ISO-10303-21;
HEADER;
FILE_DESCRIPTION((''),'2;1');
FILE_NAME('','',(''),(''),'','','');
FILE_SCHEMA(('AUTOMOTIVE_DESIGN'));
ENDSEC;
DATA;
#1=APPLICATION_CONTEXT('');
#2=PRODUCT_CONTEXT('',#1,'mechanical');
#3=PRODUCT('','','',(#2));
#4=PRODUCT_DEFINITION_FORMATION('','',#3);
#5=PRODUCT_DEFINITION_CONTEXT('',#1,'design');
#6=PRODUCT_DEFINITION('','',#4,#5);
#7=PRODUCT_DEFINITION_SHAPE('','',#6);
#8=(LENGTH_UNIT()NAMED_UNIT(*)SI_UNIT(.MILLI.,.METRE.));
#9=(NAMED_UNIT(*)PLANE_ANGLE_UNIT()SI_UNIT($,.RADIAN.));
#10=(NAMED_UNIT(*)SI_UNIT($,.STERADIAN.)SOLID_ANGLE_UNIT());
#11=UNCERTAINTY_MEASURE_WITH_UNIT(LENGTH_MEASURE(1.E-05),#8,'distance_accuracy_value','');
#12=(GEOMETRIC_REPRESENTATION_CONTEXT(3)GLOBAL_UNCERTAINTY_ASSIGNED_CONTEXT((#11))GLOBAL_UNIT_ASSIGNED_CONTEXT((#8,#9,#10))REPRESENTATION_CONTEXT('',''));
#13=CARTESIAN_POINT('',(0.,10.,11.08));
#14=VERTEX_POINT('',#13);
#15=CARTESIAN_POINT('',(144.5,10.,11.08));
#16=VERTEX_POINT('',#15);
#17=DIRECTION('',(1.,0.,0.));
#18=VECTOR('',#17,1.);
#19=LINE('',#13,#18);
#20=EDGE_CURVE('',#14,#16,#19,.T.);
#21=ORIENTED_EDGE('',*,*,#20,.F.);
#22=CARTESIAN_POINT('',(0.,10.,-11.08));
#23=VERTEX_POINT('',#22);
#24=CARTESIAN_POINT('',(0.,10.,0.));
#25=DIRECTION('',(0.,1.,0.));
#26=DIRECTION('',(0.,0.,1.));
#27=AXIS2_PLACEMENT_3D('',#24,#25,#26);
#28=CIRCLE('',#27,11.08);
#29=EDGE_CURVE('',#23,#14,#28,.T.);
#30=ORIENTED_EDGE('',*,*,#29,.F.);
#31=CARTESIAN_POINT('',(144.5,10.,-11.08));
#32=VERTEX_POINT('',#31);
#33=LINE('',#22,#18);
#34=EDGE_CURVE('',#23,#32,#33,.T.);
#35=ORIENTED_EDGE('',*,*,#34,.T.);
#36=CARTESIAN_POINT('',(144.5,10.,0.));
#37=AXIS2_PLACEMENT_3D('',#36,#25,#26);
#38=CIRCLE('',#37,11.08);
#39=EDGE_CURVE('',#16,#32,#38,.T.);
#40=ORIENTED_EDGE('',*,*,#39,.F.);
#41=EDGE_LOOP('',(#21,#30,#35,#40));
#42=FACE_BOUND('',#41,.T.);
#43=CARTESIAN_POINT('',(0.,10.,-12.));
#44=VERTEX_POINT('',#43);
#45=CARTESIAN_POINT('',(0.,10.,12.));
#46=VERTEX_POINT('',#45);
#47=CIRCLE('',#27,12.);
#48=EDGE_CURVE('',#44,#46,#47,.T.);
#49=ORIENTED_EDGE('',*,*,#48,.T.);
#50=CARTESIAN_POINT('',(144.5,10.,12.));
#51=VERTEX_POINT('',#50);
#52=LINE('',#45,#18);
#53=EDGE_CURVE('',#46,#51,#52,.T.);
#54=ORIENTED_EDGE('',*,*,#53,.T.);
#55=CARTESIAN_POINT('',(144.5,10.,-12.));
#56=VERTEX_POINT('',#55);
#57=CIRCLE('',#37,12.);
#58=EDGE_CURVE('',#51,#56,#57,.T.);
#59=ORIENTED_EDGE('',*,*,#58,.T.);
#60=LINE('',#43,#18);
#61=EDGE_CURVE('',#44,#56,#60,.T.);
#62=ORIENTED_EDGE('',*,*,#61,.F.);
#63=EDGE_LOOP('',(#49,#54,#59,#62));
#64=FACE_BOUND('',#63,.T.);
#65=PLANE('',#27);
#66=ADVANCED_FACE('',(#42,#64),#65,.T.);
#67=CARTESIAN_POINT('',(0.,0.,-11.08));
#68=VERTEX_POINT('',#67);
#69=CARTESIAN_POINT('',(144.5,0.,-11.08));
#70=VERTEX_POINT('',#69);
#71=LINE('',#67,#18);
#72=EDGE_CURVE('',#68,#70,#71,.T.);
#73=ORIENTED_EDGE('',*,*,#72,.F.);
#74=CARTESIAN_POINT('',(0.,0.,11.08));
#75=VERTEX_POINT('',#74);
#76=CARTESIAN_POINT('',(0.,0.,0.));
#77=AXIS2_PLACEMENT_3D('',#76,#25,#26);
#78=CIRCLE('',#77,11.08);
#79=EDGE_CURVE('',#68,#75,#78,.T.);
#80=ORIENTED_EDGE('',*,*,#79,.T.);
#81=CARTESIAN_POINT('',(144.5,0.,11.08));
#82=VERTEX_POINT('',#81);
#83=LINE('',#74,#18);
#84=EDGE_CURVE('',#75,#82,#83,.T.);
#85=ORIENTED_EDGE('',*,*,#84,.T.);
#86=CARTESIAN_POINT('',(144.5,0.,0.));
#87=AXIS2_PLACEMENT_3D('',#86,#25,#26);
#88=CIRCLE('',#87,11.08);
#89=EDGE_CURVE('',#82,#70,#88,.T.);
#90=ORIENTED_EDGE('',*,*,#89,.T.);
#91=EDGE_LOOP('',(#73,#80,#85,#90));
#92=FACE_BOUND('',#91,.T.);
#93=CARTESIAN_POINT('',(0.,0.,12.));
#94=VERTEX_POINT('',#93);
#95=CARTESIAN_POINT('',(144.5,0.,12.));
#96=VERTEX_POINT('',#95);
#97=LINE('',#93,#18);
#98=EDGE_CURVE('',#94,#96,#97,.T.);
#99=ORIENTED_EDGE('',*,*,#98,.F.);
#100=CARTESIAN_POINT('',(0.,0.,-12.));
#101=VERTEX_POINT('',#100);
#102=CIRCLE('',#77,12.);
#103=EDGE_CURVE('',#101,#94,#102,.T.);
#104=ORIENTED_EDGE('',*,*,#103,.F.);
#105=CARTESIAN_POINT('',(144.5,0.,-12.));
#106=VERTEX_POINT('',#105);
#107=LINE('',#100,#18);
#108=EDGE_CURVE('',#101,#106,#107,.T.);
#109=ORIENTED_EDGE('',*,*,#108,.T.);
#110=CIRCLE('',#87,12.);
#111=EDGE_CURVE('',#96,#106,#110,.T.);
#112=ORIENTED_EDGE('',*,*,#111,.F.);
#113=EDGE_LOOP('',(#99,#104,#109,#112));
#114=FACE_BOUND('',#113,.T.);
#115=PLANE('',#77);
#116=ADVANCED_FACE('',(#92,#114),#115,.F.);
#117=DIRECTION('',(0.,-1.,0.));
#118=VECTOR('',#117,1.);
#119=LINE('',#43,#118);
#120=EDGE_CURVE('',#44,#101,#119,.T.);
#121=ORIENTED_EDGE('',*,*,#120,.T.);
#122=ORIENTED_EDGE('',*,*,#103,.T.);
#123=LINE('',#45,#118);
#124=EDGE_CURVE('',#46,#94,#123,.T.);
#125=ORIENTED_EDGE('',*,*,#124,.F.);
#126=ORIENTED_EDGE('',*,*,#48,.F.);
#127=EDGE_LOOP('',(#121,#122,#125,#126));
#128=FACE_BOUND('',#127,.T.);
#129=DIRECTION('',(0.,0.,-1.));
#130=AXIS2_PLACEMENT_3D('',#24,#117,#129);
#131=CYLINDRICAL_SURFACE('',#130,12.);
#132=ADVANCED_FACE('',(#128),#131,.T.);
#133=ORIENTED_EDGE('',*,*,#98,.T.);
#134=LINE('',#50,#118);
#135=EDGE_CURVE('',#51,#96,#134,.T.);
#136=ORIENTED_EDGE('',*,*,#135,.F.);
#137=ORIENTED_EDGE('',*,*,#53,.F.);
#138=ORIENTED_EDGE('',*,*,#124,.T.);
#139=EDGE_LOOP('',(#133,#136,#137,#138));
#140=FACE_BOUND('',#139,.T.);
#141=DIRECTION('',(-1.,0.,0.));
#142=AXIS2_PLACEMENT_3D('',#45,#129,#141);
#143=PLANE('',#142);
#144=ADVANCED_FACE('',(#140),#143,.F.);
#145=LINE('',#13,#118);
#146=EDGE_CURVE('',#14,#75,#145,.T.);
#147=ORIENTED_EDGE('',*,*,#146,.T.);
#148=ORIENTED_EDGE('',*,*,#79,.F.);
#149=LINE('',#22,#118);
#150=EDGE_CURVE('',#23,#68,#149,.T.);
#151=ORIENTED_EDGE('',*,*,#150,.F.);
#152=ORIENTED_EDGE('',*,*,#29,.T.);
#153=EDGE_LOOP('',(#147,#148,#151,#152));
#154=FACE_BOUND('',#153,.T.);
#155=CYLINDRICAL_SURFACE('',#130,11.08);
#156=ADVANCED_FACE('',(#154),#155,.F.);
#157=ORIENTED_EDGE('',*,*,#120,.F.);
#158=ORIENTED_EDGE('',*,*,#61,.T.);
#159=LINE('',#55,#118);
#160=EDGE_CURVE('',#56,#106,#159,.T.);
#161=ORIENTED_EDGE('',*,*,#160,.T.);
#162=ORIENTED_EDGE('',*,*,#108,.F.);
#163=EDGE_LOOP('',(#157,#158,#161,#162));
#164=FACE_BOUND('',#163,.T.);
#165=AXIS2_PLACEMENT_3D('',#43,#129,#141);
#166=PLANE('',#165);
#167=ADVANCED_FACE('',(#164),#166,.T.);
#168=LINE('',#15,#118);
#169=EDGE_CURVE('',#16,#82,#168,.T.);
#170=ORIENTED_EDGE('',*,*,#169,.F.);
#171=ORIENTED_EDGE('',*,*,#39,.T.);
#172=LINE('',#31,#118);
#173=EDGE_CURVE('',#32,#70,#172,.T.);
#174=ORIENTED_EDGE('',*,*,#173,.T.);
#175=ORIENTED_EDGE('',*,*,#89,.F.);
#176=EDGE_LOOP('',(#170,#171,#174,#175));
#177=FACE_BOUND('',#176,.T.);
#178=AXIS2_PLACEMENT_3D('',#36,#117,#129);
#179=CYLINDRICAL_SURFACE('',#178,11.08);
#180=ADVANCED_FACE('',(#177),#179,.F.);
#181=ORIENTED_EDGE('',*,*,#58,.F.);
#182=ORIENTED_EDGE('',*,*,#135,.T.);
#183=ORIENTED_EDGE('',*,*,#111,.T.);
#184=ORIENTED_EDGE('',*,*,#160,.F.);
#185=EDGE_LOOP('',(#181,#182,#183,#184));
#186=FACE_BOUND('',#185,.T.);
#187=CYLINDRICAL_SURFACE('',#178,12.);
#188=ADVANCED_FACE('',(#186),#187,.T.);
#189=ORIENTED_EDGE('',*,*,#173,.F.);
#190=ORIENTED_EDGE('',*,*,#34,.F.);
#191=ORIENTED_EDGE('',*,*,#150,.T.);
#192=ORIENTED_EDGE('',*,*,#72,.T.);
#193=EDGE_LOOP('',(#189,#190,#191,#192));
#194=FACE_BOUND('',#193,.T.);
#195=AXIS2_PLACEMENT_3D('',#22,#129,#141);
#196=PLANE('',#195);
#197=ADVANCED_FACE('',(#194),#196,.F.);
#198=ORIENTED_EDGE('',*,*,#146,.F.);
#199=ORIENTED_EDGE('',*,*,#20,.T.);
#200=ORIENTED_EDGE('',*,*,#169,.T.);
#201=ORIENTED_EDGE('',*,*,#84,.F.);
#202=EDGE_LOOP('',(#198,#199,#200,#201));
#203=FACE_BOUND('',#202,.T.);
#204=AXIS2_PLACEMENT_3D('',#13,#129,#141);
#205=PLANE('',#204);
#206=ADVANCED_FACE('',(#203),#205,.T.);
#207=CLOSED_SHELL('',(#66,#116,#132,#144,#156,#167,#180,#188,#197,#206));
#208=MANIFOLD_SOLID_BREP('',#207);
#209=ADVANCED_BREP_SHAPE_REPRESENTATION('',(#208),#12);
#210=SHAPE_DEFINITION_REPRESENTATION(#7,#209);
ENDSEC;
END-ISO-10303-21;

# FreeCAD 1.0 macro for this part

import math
import FreeCAD as App
import Part
import Sketcher
from FreeCAD import Vector

doc = App.newDocument("Part")
body = doc.addObject("PartDesign::Body", "Body")

# Sketch on XZ plane
sketch1 = body.newObject("Sketcher::SketchObject", "Sketch")
sketch1.AttachmentSupport = (doc.getObject("XZ_Plane"), [""])
sketch1.MapMode = "FlatFace"
sketch1.addGeometry(Part.ArcOfCircle(Part.Circle(Vector(144.5, 0, 0), Vector(0, 0, 1), 12), math.radians(-90), math.radians(0)), False)
sketch1.addGeometry(Part.LineSegment(Vector(144.5, -12, 0), Vector(0, -12, 0)), False)
sketch1.addGeometry(Part.ArcOfCircle(Part.Circle(Vector(0, 0, 0), Vector(0, 0, 1), 12), math.radians(90), math.radians(270)), False)
sketch1.addGeometry(Part.LineSegment(Vector(0, 12, 0), Vector(144.5, 12, 0)), False)
sketch1.addGeometry(Part.ArcOfCircle(Part.Circle(Vector(144.5, 0, 0), Vector(0, 0, 1), 12), math.radians(0), math.radians(90)), False)
sketch1.addGeometry(Part.LineSegment(Vector(0, -11.08, 0), Vector(144.5, -11.08, 0)), False)
sketch1.addGeometry(Part.ArcOfCircle(Part.Circle(Vector(144.5, 0, 0), Vector(0, 0, 1), 11.08), math.radians(-90), math.radians(0)), False)
sketch1.addGeometry(Part.ArcOfCircle(Part.Circle(Vector(144.5, 0, 0), Vector(0, 0, 1), 11.08), math.radians(0), math.radians(90)), False)
sketch1.addGeometry(Part.LineSegment(Vector(144.5, 11.08, 0), Vector(0, 11.08, 0)), False)
sketch1.addGeometry(Part.ArcOfCircle(Part.Circle(Vector(0, 0, 0), Vector(0, 0, 1), 11.08), math.radians(90), math.radians(270)), False)
sketch1.addConstraint(Sketcher.Constraint("Tangent", 0, 1, 1, 1))
sketch1.addConstraint(Sketcher.Constraint("Tangent", 1, 2, 2, 2))
sketch1.addConstraint(Sketcher.Constraint("Tangent", 2, 1, 3, 1))
sketch1.addConstraint(Sketcher.Constraint("Tangent", 3, 2, 4, 2))
sketch1.addConstraint(Sketcher.Constraint("Tangent", 4, 1, 0, 2))
sketch1.addConstraint(Sketcher.Constraint("Tangent", 5, 2, 6, 1))
sketch1.addConstraint(Sketcher.Constraint("Tangent", 6, 2, 7, 1))
sketch1.addConstraint(Sketcher.Constraint("Tangent", 7, 2, 8, 1))
sketch1.addConstraint(Sketcher.Constraint("Tangent", 8, 2, 9, 1))
sketch1.addConstraint(Sketcher.Constraint("Tangent", 9, 2, 5, 1))
sketch1.addConstraint(Sketcher.Constraint("Horizontal", 1))
sketch1.addConstraint(Sketcher.Constraint("Horizontal", 3))
sketch1.addConstraint(Sketcher.Constraint("Horizontal", 5))
sketch1.addConstraint(Sketcher.Constraint("Horizontal", 8))
sketch1.addConstraint(Sketcher.Constraint("Coincident", 2, 3, -1, 1))
sketch1.addConstraint(Sketcher.Constraint("Coincident", 9, 3, -1, 1))
sketch1.addConstraint(Sketcher.Constraint("Coincident", 6, 3, 0, 3))
sketch1.addConstraint(Sketcher.Constraint("Equal", 0, 2))
sketch1.addConstraint(Sketcher.Constraint("PointOnObject", 4, 1, -1))
sketch1.addConstraint(Sketcher.Constraint("PointOnObject", 6, 2, -1))
sketch1.addConstraint(Sketcher.Constraint("Radius", 0, 12.0))
sketch1.addConstraint(Sketcher.Constraint("Radius", 6, 11.08))
sketch1.addConstraint(Sketcher.Constraint("DistanceX", 1, 2, 1, 1, 144.5))
pad1 = body.newObject("PartDesign::Pad", "Pad")
pad1.Profile = sketch1
pad1.Length = 10
pad1.Reversed = True

doc.recompute()
